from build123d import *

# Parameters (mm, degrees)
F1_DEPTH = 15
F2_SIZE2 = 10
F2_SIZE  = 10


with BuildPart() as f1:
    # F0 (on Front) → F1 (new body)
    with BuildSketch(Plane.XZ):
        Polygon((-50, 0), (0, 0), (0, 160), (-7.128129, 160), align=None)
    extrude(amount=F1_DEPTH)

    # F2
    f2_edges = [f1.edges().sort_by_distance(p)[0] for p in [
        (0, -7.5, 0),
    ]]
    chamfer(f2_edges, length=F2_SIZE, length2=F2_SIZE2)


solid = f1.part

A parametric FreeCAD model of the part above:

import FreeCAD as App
import Part
import Sketcher
from FreeCAD import Vector
Q = App.Units.Quantity


def edges_at(feature, points):
    """Names of the edges that pass closest to the given points."""
    edges = feature.Shape.Edges
    near = lambda p: min(range(len(edges)), key=lambda i: edges[i].distToShape(Part.Vertex(*p))[0])
    return sorted({f"Edge{near(p) + 1}" for p in points})


def add_polygon(sketch, points):
    """Adds a closed chain of lines whose ends are joined by coincident constraints."""
    first, n = sketch.GeometryCount, len(points)
    for a, b in zip(points, points[1:] + points[:1]):
        sketch.addGeometry(Part.LineSegment(App.Vector(*a, 0), App.Vector(*b, 0)), False)
    for i in range(n):
        sketch.addConstraint(Sketcher.Constraint("Coincident", first + i, 2, first + (i + 1) % n, 1))

doc = App.newDocument("Part")
body = doc.addObject("PartDesign::Body", "Body")

# Sketch on XZ plane
sketch1 = body.newObject("Sketcher::SketchObject", "Sketch")
sketch1.AttachmentSupport = (doc.getObject("XZ_Plane"), [""])
sketch1.MapMode = "FlatFace"
add_polygon(sketch1, [(-50, 0), (0, 0), (0, 160), (-7, 160)])  # lines 0-3
sketch1.addConstraint(Sketcher.Constraint("Horizontal", 0))
sketch1.addConstraint(Sketcher.Constraint("Vertical", 1))
sketch1.addConstraint(Sketcher.Constraint("Horizontal", 2))
sketch1.addConstraint(Sketcher.Constraint("Coincident", 0, 2, -1, 1))
sketch1.addConstraint(Sketcher.Constraint("DistanceX", 0, 1, 0, 2, Q("50 mm")))
sketch1.addConstraint(Sketcher.Constraint("DistanceY", 1, 1, 1, 2, Q("160 mm")))
sketch1.addConstraint(Sketcher.Constraint("Angle", 3, Q("-105 deg")))
pad1 = body.newObject("PartDesign::Pad", "Pad")
pad1.Profile = sketch1
pad1.Length = 15
doc.recompute()

chamfer = body.newObject("PartDesign::Chamfer", "Chamfer")
chamfer.Base = (pad1, edges_at(pad1, [(0, -7.5, 0)]))
chamfer.ChamferType = "Two distances"
chamfer.Size = 10
chamfer.Size2 = 10

doc.recompute()
